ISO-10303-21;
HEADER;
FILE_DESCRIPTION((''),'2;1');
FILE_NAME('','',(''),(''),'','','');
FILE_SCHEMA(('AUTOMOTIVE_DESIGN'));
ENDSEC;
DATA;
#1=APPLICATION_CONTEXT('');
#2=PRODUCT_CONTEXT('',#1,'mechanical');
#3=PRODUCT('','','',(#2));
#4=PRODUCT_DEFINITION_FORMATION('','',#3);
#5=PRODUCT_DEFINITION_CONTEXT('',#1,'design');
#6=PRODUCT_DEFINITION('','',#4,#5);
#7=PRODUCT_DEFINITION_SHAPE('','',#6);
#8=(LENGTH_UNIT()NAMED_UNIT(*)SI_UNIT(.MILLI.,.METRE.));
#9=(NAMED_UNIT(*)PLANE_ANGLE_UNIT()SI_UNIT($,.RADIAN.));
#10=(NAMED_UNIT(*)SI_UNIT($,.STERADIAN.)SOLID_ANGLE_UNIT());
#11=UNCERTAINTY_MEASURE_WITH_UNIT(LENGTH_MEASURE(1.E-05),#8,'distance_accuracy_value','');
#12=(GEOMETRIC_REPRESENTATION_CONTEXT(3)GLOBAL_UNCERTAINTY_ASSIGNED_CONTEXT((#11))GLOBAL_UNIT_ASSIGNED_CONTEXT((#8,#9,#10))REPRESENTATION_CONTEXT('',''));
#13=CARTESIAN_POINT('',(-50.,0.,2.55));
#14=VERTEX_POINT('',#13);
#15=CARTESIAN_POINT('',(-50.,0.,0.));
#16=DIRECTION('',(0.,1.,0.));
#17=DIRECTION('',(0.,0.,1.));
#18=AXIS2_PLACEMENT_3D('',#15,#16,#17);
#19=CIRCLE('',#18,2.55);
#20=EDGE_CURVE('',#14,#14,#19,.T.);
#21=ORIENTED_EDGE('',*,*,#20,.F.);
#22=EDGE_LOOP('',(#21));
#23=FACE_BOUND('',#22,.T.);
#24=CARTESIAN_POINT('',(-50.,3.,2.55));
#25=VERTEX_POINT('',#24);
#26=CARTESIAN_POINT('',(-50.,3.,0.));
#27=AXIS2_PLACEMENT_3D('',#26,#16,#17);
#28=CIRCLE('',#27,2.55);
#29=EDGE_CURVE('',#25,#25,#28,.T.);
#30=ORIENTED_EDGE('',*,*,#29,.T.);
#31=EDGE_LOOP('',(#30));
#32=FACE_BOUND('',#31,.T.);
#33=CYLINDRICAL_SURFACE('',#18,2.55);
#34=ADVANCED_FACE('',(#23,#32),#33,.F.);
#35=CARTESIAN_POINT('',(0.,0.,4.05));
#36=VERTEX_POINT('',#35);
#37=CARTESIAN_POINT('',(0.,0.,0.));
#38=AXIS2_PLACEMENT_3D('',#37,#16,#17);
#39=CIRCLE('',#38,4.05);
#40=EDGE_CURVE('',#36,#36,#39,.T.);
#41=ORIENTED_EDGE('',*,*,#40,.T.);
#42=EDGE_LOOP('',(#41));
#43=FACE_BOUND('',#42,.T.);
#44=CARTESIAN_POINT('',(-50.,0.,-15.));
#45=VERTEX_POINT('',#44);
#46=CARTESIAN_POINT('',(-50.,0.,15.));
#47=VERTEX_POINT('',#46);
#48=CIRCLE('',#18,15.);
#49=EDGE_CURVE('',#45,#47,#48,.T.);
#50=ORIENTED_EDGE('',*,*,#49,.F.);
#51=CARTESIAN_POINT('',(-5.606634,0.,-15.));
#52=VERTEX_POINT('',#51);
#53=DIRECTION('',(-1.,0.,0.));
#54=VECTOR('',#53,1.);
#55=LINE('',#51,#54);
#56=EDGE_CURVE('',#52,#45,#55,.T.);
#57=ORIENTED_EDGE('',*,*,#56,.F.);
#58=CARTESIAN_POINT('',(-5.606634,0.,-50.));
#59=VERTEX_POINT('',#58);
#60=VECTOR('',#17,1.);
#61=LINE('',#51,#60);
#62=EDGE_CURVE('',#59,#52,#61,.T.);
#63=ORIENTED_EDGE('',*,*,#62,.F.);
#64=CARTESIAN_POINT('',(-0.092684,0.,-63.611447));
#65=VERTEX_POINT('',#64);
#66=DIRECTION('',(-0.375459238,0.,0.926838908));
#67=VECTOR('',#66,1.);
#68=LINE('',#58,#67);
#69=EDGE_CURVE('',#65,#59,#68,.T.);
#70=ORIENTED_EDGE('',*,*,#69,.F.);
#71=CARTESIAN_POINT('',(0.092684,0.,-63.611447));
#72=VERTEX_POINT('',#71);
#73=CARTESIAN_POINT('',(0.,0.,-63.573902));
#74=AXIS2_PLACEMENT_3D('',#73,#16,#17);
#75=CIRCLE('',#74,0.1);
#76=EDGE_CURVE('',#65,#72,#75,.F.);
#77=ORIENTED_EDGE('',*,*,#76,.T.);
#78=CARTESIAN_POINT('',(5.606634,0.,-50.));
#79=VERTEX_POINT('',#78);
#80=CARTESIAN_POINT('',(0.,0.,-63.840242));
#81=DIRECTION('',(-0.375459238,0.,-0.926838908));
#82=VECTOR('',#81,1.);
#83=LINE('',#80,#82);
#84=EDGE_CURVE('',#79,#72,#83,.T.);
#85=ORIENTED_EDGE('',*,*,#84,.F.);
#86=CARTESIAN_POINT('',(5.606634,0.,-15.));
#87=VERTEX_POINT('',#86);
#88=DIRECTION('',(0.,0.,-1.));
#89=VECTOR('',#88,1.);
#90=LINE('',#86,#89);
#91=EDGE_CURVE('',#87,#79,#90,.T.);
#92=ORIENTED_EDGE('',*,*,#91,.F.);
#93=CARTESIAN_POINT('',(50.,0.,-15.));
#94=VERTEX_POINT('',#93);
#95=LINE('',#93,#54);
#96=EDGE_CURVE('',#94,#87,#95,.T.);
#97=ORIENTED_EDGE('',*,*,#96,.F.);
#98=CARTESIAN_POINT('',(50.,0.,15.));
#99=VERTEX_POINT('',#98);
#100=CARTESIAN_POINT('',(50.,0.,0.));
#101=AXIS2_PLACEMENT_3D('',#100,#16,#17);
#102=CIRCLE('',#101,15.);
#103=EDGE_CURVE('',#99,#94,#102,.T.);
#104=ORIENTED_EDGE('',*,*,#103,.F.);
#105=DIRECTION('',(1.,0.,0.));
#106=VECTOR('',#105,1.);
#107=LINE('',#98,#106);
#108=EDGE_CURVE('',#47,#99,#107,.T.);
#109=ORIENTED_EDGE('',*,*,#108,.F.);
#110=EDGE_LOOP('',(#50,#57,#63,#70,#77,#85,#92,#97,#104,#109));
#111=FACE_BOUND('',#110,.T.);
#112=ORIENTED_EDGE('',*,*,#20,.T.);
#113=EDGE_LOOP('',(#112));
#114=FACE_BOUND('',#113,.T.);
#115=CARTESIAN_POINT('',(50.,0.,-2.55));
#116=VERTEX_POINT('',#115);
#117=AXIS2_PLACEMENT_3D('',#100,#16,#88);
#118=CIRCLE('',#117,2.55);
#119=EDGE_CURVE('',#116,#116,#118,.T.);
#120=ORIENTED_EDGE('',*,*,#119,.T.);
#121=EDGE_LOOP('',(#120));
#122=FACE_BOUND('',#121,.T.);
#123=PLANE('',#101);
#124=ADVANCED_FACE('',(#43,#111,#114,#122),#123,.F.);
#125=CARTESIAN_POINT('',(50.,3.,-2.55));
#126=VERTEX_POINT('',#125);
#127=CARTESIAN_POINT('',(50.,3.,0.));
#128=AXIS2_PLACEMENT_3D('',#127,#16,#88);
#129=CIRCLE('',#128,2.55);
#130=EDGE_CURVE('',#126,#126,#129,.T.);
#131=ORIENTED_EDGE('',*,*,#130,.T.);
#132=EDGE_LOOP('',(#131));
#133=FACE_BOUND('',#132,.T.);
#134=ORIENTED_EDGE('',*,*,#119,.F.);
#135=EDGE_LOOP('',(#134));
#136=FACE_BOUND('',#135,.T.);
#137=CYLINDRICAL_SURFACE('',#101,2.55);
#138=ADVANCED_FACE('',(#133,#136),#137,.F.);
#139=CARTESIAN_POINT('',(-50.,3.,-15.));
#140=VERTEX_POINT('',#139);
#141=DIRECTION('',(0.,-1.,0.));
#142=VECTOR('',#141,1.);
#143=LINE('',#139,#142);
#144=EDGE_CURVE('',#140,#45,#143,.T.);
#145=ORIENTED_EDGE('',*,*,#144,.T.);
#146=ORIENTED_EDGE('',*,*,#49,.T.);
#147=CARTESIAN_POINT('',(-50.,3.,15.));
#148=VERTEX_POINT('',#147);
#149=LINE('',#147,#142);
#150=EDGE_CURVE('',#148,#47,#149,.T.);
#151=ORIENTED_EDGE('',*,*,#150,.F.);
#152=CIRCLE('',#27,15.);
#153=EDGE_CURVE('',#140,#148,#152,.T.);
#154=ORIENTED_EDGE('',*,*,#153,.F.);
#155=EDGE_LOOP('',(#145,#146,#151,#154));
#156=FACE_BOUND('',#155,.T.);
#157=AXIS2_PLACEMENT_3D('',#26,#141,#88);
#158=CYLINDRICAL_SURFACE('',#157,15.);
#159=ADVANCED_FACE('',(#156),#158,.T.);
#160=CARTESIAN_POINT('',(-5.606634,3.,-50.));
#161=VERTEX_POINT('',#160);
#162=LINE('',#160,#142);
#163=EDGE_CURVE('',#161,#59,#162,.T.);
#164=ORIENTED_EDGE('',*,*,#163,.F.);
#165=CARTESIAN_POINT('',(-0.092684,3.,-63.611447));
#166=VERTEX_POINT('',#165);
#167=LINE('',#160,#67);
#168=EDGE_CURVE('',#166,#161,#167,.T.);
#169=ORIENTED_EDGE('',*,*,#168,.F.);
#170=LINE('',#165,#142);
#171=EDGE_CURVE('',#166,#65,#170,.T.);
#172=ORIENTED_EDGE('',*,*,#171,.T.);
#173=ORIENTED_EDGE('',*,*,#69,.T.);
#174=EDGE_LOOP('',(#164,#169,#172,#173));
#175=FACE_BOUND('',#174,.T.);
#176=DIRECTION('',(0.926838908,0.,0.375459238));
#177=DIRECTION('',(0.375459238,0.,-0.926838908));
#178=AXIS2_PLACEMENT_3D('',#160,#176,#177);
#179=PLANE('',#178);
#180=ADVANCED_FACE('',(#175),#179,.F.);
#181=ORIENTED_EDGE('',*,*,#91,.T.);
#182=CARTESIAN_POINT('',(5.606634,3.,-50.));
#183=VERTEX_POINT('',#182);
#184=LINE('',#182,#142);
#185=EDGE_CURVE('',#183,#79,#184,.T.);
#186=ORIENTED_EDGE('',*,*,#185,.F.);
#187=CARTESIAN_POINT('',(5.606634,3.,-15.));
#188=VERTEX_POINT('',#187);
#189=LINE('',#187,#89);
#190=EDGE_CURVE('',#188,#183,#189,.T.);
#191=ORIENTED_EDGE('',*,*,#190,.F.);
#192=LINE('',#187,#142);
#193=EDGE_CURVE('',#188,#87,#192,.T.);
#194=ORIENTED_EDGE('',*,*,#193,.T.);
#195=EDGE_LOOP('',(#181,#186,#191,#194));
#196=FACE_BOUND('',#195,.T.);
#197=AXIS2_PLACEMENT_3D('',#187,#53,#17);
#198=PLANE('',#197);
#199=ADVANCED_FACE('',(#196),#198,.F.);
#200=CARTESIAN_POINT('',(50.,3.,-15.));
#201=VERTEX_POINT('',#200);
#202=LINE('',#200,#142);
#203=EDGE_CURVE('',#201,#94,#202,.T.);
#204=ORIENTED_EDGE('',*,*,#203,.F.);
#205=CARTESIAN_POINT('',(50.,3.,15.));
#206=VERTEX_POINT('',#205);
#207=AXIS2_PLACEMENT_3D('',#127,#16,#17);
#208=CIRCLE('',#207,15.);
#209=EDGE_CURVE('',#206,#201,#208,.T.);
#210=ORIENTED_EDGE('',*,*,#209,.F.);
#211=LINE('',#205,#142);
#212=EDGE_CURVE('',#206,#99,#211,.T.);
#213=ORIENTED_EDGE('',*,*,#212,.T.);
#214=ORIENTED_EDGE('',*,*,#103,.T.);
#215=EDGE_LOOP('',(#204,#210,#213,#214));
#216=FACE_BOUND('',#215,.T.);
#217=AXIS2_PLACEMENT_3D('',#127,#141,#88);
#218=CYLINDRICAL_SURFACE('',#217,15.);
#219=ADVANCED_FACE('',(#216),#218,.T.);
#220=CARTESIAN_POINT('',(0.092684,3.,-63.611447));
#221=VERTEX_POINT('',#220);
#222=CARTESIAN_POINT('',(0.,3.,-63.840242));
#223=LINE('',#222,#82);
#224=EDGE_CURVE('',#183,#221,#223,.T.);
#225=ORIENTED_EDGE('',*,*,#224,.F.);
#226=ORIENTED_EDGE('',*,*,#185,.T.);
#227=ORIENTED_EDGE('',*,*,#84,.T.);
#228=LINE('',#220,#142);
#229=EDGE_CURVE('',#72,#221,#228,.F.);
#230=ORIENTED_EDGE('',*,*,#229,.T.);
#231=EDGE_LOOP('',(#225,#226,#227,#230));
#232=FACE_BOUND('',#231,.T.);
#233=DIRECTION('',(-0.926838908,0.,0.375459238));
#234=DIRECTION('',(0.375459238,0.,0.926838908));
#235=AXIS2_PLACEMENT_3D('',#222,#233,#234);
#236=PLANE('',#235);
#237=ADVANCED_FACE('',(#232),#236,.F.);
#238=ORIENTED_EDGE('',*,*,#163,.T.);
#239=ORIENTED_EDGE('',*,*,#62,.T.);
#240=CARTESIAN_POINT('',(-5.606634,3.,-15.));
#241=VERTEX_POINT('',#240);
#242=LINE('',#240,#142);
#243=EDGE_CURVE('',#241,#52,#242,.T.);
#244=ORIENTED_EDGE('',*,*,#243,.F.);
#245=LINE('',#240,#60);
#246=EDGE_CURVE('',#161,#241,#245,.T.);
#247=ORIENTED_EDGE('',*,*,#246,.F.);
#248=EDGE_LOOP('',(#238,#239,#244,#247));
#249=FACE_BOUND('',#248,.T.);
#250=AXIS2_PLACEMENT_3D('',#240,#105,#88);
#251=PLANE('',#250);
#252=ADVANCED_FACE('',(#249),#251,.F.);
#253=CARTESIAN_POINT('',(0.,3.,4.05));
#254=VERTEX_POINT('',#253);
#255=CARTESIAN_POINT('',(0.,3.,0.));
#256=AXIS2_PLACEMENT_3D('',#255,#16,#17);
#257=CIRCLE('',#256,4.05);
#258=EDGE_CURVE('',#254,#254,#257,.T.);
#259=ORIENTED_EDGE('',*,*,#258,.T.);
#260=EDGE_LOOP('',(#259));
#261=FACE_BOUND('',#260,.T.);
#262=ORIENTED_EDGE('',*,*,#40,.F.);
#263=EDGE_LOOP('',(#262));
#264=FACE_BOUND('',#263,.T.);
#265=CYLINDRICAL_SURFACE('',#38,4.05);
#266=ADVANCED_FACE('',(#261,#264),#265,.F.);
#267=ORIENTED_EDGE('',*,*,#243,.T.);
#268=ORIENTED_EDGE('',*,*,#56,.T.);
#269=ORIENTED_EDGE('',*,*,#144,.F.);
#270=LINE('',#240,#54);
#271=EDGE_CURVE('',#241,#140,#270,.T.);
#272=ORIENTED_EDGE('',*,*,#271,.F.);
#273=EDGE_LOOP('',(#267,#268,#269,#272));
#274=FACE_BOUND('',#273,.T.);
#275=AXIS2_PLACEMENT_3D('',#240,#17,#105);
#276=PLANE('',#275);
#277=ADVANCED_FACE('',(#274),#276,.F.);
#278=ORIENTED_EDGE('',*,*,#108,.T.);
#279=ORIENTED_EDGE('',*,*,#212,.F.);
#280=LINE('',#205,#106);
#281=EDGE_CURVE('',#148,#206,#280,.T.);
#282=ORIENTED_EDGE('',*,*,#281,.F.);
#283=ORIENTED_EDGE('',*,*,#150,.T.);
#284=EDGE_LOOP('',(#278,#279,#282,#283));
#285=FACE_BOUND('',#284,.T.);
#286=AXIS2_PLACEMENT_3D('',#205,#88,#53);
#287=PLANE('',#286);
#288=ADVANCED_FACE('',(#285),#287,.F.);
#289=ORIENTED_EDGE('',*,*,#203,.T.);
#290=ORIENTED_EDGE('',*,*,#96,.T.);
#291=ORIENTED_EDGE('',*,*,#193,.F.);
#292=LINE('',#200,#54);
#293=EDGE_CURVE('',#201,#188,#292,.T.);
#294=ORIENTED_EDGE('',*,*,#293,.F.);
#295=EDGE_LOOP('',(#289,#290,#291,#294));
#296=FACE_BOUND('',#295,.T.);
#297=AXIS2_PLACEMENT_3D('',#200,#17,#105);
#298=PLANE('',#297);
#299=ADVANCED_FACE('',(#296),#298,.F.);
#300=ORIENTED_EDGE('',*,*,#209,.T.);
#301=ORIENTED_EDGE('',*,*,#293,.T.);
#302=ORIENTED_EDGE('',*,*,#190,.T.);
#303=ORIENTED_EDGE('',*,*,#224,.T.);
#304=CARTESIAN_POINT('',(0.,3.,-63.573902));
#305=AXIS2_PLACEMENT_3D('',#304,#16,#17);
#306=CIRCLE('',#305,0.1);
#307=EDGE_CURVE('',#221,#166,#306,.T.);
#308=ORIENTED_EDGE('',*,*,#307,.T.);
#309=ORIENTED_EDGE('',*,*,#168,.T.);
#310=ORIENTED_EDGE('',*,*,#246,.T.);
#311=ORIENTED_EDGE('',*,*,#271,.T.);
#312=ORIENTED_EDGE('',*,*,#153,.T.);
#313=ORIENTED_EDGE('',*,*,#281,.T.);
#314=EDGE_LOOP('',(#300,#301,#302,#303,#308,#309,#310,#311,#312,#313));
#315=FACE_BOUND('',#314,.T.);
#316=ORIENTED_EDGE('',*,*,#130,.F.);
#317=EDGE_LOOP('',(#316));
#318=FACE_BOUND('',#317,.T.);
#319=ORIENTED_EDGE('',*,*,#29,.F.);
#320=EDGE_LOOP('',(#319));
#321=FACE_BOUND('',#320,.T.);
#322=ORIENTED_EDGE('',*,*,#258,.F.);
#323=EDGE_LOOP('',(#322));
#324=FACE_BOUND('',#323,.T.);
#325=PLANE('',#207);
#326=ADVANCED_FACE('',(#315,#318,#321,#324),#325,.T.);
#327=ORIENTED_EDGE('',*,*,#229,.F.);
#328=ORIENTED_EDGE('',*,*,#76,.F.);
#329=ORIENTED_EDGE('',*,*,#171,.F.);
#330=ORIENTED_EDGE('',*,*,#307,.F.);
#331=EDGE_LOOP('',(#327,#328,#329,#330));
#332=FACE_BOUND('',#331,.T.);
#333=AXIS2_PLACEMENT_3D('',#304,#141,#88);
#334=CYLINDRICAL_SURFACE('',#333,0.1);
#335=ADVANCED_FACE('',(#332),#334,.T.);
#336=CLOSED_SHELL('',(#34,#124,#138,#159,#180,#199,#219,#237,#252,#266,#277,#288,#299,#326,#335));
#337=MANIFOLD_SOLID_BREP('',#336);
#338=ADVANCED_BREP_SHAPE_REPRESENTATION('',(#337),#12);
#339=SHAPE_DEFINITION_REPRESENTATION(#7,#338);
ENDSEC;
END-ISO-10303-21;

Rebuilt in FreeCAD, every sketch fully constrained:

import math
import FreeCAD as App
import Part
import Sketcher
Q = App.Units.Quantity


def edges_at(feature, points):
    """Names of the edges that pass closest to the given points."""
    edges = feature.Shape.Edges
    near = lambda p: min(range(len(edges)), key=lambda i: edges[i].distToShape(Part.Vertex(*p))[0])
    return sorted({f"Edge{near(p) + 1}" for p in points})

doc = App.newDocument("Part")
body = doc.addObject("PartDesign::Body", "Body")

sketch1 = body.newObject("Sketcher::SketchObject", "Sketch")
sketch1.AttachmentSupport = (doc.getObject("XZ_Plane"), [""])
sketch1.MapMode = "FlatFace"
sketch1.addGeometry(Part.LineSegment(App.Vector(-50, 15, 0), App.Vector(50, 15, 0)), False)
sketch1.addGeometry(Part.ArcOfCircle(Part.Circle(App.Vector(50, 0, 0), App.Vector(0, 0, 1), 15), math.radians(-90), math.radians(90)), False)
sketch1.addGeometry(Part.LineSegment(App.Vector(50, -15, 0), App.Vector(5.606634, -15, 0)), False)
sketch1.addGeometry(Part.LineSegment(App.Vector(5.606634, -15, 0), App.Vector(5.606634, -50, 0)), False)
sketch1.addGeometry(Part.LineSegment(App.Vector(5.606634, -50, 0), App.Vector(0, -63.840242, 0)), False)
sketch1.addGeometry(Part.LineSegment(App.Vector(0, -63.840242, 0), App.Vector(-5.606634, -50, 0)), False)
sketch1.addGeometry(Part.LineSegment(App.Vector(-5.606634, -50, 0), App.Vector(-5.606634, -15, 0)), False)
sketch1.addGeometry(Part.LineSegment(App.Vector(-5.606634, -15, 0), App.Vector(-50, -15, 0)), False)
sketch1.addGeometry(Part.ArcOfCircle(Part.Circle(App.Vector(-50, 0, 0), App.Vector(0, 0, 1), 15), math.radians(90), math.radians(270)), False)
sketch1.addConstraint(Sketcher.Constraint("Tangent", 0, 2, 1, 2))
sketch1.addConstraint(Sketcher.Constraint("Tangent", 1, 1, 2, 1))
sketch1.addConstraint(Sketcher.Constraint("Coincident", 2, 2, 3, 1))
sketch1.addConstraint(Sketcher.Constraint("Coincident", 3, 2, 4, 1))
sketch1.addConstraint(Sketcher.Constraint("Coincident", 4, 2, 5, 1))
sketch1.addConstraint(Sketcher.Constraint("Coincident", 5, 2, 6, 1))
sketch1.addConstraint(Sketcher.Constraint("Coincident", 6, 2, 7, 1))
sketch1.addConstraint(Sketcher.Constraint("Tangent", 7, 2, 8, 2))
sketch1.addConstraint(Sketcher.Constraint("Tangent", 8, 1, 0, 1))
sketch1.addConstraint(Sketcher.Constraint("Horizontal", 0))
sketch1.addConstraint(Sketcher.Constraint("Horizontal", 2))
sketch1.addConstraint(Sketcher.Constraint("Vertical", 3))
sketch1.addConstraint(Sketcher.Constraint("Vertical", 6))
sketch1.addConstraint(Sketcher.Constraint("Horizontal", 7))
sketch1.addConstraint(Sketcher.Constraint("Equal", 1, 8))
sketch1.addConstraint(Sketcher.Constraint("Symmetric", 1, 3, 8, 3, -1, 1))
sketch1.addConstraint(Sketcher.Constraint("Symmetric", 3, 2, 5, 2, -2))
sketch1.addConstraint(Sketcher.Constraint("PointOnObject", 4, 2, -2))
sketch1.addConstraint(Sketcher.Constraint("Radius", 1, Q("15 mm")))
sketch1.addConstraint(Sketcher.Constraint("DistanceX", 0, 1, 0, 2, Q("100 mm")))
sketch1.addConstraint(Sketcher.Constraint("DistanceY", 3, 2, 3, 1, Q("35 mm")))
sketch1.addConstraint(Sketcher.Constraint("DistanceX", 2, 2, 2, 1, Q("44.393366 mm")))
sketch1.addConstraint(Sketcher.Constraint("Distance", 4, Q("14.932737 mm")))
pad1 = body.newObject("PartDesign::Pad", "Pad")
pad1.Profile = sketch1
pad1.Length = 3
pad1.Reversed = True

sketch2 = body.newObject("Sketcher::SketchObject", "Sketch001")
sketch2.AttachmentSupport = (doc.getObject("XZ_Plane"), [""])
sketch2.MapMode = "FlatFace"
sketch2.AttachmentOffset = App.Placement(App.Vector(0, 0, -3), App.Rotation())
sketch2.addGeometry(Part.Circle(App.Vector(0, 0, 0), App.Vector(0, 0, 1), 4.05), False)
sketch2.addGeometry(Part.Circle(App.Vector(-50, 0, 0), App.Vector(0, 0, 1), 2.55), False)
sketch2.addGeometry(Part.Circle(App.Vector(50, 0, 0), App.Vector(0, 0, 1), 2.55), False)
sketch2.addConstraint(Sketcher.Constraint("Coincident", 0, 3, -1, 1))
sketch2.addConstraint(Sketcher.Constraint("Equal", 1, 2))
sketch2.addConstraint(Sketcher.Constraint("Symmetric", 1, 3, 2, 3, -1, 1))
sketch2.addConstraint(Sketcher.Constraint("PointOnObject", 1, 3, -1))
sketch2.addConstraint(Sketcher.Constraint("Diameter", 0, Q("8.1 mm")))
sketch2.addConstraint(Sketcher.Constraint("Diameter", 1, Q("5.1 mm")))
sketch2.addConstraint(Sketcher.Constraint("DistanceX", 1, 3, -1, 1, Q("50 mm")))
pocket1 = body.newObject("PartDesign::Pocket", "Pocket")
pocket1.Profile = sketch2
pocket1.Length = 3
pocket1.Reversed = True
doc.recompute()

fillet = body.newObject("PartDesign::Fillet", "Fillet")
fillet.Base = (pocket1, edges_at(pocket1, [(0, 1.5, -63.84)]))
fillet.Radius = 0.1

doc.recompute()
